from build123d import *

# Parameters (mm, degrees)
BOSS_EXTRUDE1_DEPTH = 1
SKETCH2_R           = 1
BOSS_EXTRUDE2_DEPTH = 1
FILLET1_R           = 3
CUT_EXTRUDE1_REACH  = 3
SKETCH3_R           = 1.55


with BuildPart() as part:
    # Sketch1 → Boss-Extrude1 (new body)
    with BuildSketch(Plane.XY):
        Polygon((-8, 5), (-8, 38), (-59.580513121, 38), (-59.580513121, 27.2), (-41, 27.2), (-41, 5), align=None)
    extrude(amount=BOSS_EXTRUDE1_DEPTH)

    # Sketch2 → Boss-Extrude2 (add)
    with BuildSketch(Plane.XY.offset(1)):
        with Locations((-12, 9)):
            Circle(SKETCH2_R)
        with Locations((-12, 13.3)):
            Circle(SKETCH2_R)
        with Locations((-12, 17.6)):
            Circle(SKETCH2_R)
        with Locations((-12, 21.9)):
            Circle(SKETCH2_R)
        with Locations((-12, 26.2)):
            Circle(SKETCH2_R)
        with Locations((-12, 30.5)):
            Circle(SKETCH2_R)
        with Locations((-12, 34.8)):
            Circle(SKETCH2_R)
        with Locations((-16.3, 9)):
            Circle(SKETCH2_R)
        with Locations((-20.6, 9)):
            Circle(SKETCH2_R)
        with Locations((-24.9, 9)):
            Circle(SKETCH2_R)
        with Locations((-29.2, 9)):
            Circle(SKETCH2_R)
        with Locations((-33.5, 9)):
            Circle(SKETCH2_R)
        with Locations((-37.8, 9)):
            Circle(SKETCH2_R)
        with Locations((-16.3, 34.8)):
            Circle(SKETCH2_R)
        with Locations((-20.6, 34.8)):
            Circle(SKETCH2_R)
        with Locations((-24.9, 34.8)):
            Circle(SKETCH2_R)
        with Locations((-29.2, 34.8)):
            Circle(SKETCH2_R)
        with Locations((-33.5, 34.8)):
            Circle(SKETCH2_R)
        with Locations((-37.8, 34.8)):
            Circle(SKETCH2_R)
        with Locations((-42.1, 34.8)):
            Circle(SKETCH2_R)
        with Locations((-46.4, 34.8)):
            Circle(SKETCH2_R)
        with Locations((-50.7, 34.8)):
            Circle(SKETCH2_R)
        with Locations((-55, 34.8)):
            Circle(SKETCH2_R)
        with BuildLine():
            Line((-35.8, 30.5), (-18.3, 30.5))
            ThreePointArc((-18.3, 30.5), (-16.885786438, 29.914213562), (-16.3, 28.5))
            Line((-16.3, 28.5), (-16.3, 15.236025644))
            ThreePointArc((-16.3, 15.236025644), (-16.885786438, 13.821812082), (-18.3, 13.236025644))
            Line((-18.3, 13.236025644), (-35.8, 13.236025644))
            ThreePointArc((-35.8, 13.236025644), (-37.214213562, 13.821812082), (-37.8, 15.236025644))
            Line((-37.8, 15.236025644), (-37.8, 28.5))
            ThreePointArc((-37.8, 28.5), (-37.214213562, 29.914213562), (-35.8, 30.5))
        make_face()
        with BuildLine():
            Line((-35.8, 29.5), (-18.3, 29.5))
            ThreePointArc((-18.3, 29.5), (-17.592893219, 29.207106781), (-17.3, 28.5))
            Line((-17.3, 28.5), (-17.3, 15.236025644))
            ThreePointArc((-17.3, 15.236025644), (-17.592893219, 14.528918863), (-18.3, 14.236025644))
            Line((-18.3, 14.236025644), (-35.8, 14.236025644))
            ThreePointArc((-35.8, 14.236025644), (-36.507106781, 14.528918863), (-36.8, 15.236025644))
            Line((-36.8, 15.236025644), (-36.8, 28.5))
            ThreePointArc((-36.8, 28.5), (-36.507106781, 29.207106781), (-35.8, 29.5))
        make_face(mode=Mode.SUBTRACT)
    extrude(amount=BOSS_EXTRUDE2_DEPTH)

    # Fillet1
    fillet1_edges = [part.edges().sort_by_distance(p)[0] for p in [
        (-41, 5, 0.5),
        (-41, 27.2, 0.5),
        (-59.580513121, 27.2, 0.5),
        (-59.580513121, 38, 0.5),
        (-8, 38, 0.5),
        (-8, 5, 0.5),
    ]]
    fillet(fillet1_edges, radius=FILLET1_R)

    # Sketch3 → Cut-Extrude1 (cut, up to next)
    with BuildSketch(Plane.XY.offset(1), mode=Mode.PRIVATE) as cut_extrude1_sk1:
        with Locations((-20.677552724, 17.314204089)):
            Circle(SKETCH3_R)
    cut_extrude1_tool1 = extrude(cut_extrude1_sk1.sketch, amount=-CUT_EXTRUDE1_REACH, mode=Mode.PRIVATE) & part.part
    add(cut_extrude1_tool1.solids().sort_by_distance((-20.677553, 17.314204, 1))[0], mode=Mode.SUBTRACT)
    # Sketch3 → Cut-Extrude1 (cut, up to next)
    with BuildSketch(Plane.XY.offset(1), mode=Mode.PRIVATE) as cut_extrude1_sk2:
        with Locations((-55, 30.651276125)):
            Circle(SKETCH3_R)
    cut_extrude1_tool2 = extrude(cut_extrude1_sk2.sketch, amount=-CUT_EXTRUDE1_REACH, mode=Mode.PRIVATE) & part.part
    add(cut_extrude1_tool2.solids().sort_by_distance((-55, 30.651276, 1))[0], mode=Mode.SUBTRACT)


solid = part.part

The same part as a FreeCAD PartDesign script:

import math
import FreeCAD as App
import Part
import Sketcher
from FreeCAD import Vector
Q = App.Units.Quantity


def edges_at(feature, points):
    """Names of the edges that pass closest to the given points."""
    edges = feature.Shape.Edges
    near = lambda p: min(range(len(edges)), key=lambda i: edges[i].distToShape(Part.Vertex(*p))[0])
    return sorted({f"Edge{near(p) + 1}" for p in points})

doc = App.newDocument("Part")
body = doc.addObject("PartDesign::Body", "Body")

# Sketch on XY plane
sketch1 = body.newObject("Sketcher::SketchObject", "Sketch")
sketch1.AttachmentSupport = (doc.getObject("XY_Plane"), [""])
sketch1.MapMode = "FlatFace"
sketch1.addGeometry([
    Part.LineSegment(Vector(-8, 5, 0), Vector(-8, 38, 0)),  # 0
    Part.LineSegment(Vector(-8, 38, 0), Vector(-60, 38, 0)),  # 1
    Part.LineSegment(Vector(-60, 38, 0), Vector(-60, 27, 0)),  # 2
    Part.LineSegment(Vector(-60, 27, 0), Vector(-41, 27, 0)),  # 3
    Part.LineSegment(Vector(-41, 27, 0), Vector(-41, 5, 0)),  # 4
    Part.LineSegment(Vector(-41, 5, 0), Vector(-8, 5, 0)),  # 5
], False)
sketch1.addConstraint([
    Sketcher.Constraint("Coincident", 0, 2, 1, 1),
    Sketcher.Constraint("Coincident", 1, 2, 2, 1),
    Sketcher.Constraint("Coincident", 2, 2, 3, 1),
    Sketcher.Constraint("Coincident", 3, 2, 4, 1),
    Sketcher.Constraint("Coincident", 4, 2, 5, 1),
    Sketcher.Constraint("Coincident", 5, 2, 0, 1),
    Sketcher.Constraint("Vertical", 0),
    Sketcher.Constraint("Horizontal", 1),
    Sketcher.Constraint("Vertical", 2),
    Sketcher.Constraint("Horizontal", 3),
    Sketcher.Constraint("Vertical", 4),
    Sketcher.Constraint("Horizontal", 5),
    Sketcher.Constraint("Equal", 5, 0),
    Sketcher.Constraint("DistanceX", 5, 1, 5, 2, Q("33 mm")),
    Sketcher.Constraint("DistanceY", 2, 2, 2, 1, Q("10.8 mm")),
    Sketcher.Constraint("DistanceX", 0, 2, -1, 1, Q("8 mm")),
    Sketcher.Constraint("DistanceY", -1, 1, 0, 2, Q("38 mm")),
    Sketcher.Constraint("DistanceX", 1, 2, 1, 1, Q("51.580513 mm")),
])
pad1 = body.newObject("PartDesign::Pad", "Pad")
pad1.Profile = sketch1
pad1.Length = 1

# Sketch on XY plane
sketch2 = body.newObject("Sketcher::SketchObject", "Sketch001")
sketch2.AttachmentSupport = (doc.getObject("XY_Plane"), [""])
sketch2.MapMode = "FlatFace"
sketch2.AttachmentOffset = App.Placement(Vector(0, 0, 1), App.Rotation())
sketch2.addGeometry([
    Part.Circle(Vector(-12, 9, 0), Vector(0, 0, 1), 1),  # 0
    Part.Circle(Vector(-12, 13.3, 0), Vector(0, 0, 1), 1),  # 1
    Part.Circle(Vector(-12, 17.6, 0), Vector(0, 0, 1), 1),  # 2
    Part.Circle(Vector(-12, 21.9, 0), Vector(0, 0, 1), 1),  # 3
    Part.Circle(Vector(-12, 26.2, 0), Vector(0, 0, 1), 1),  # 4
    Part.Circle(Vector(-12, 30.5, 0), Vector(0, 0, 1), 1),  # 5
    Part.Circle(Vector(-12, 34.8, 0), Vector(0, 0, 1), 1),  # 6
    Part.Circle(Vector(-16.3, 9, 0), Vector(0, 0, 1), 1),  # 7
    Part.Circle(Vector(-20.6, 9, 0), Vector(0, 0, 1), 1),  # 8
    Part.Circle(Vector(-24.9, 9, 0), Vector(0, 0, 1), 1),  # 9
    Part.Circle(Vector(-29.2, 9, 0), Vector(0, 0, 1), 1),  # 10
    Part.Circle(Vector(-33.5, 9, 0), Vector(0, 0, 1), 1),  # 11
    Part.Circle(Vector(-37.8, 9, 0), Vector(0, 0, 1), 1),  # 12
    Part.Circle(Vector(-16.3, 34.8, 0), Vector(0, 0, 1), 1),  # 13
    Part.Circle(Vector(-20.6, 34.8, 0), Vector(0, 0, 1), 1),  # 14
    Part.Circle(Vector(-24.9, 34.8, 0), Vector(0, 0, 1), 1),  # 15
    Part.Circle(Vector(-29.2, 34.8, 0), Vector(0, 0, 1), 1),  # 16
    Part.Circle(Vector(-33.5, 34.8, 0), Vector(0, 0, 1), 1),  # 17
    Part.Circle(Vector(-37.8, 34.8, 0), Vector(0, 0, 1), 1),  # 18
    Part.Circle(Vector(-42.1, 34.8, 0), Vector(0, 0, 1), 1),  # 19
    Part.Circle(Vector(-46.4, 34.8, 0), Vector(0, 0, 1), 1),  # 20
    Part.Circle(Vector(-50.7, 34.8, 0), Vector(0, 0, 1), 1),  # 21
    Part.Circle(Vector(-55, 34.8, 0), Vector(0, 0, 1), 1),  # 22
    Part.LineSegment(Vector(-18.3, 30.5, 0), Vector(-35.8, 30.5, 0)),  # 23
    Part.ArcOfCircle(Part.Circle(Vector(-35.8, 28.5, 0), Vector(0, 0, 1), 2), math.radians(90), math.radians(180)),  # 24
    Part.LineSegment(Vector(-37.8, 28.5, 0), Vector(-37.8, 15.2, 0)),  # 25
    Part.ArcOfCircle(Part.Circle(Vector(-35.8, 15.2, 0), Vector(0, 0, 1), 2), math.radians(-180), math.radians(-90)),  # 26
    Part.LineSegment(Vector(-35.8, 13.2, 0), Vector(-18.3, 13.2, 0)),  # 27
    Part.ArcOfCircle(Part.Circle(Vector(-18.3, 15.2, 0), Vector(0, 0, 1), 2), math.radians(-90), math.radians(0)),  # 28
    Part.LineSegment(Vector(-16.3, 15.2, 0), Vector(-16.3, 28.5, 0)),  # 29
    Part.ArcOfCircle(Part.Circle(Vector(-18.3, 28.5, 0), Vector(0, 0, 1), 2), math.radians(0), math.radians(90)),  # 30
    Part.LineSegment(Vector(-35.8, 29.5, 0), Vector(-18.3, 29.5, 0)),  # 31
    Part.ArcOfCircle(Part.Circle(Vector(-18.3, 28.5, 0), Vector(0, 0, 1), 1), math.radians(0), math.radians(90)),  # 32
    Part.LineSegment(Vector(-17.3, 28.5, 0), Vector(-17.3, 15.2, 0)),  # 33
    Part.ArcOfCircle(Part.Circle(Vector(-18.3, 15.2, 0), Vector(0, 0, 1), 1), math.radians(-90), math.radians(0)),  # 34
    Part.LineSegment(Vector(-18.3, 14.2, 0), Vector(-35.8, 14.2, 0)),  # 35
    Part.ArcOfCircle(Part.Circle(Vector(-35.8, 15.2, 0), Vector(0, 0, 1), 1), math.radians(-180), math.radians(-90)),  # 36
    Part.LineSegment(Vector(-36.8, 15.2, 0), Vector(-36.8, 28.5, 0)),  # 37
    Part.ArcOfCircle(Part.Circle(Vector(-35.8, 28.5, 0), Vector(0, 0, 1), 1), math.radians(90), math.radians(180)),  # 38
], False)
sketch2.addConstraint([
    Sketcher.Constraint("Tangent", 23, 2, 24, 1),
    Sketcher.Constraint("Tangent", 24, 2, 25, 1),
    Sketcher.Constraint("Tangent", 25, 2, 26, 1),
    Sketcher.Constraint("Tangent", 26, 2, 27, 1),
    Sketcher.Constraint("Tangent", 27, 2, 28, 1),
    Sketcher.Constraint("Tangent", 28, 2, 29, 1),
    Sketcher.Constraint("Tangent", 29, 2, 30, 1),
    Sketcher.Constraint("Tangent", 30, 2, 23, 1),
    Sketcher.Constraint("Tangent", 31, 2, 32, 2),
    Sketcher.Constraint("Tangent", 32, 1, 33, 1),
    Sketcher.Constraint("Tangent", 33, 2, 34, 2),
    Sketcher.Constraint("Tangent", 34, 1, 35, 1),
    Sketcher.Constraint("Tangent", 35, 2, 36, 2),
    Sketcher.Constraint("Tangent", 36, 1, 37, 1),
    Sketcher.Constraint("Tangent", 37, 2, 38, 2),
    Sketcher.Constraint("Tangent", 38, 1, 31, 1),
    Sketcher.Constraint("Horizontal", 23),
    Sketcher.Constraint("Vertical", 25),
    Sketcher.Constraint("Horizontal", 27),
    Sketcher.Constraint("Vertical", 29),
    Sketcher.Constraint("Horizontal", 31),
    Sketcher.Constraint("Vertical", 33),
    Sketcher.Constraint("Horizontal", 35),
    Sketcher.Constraint("Vertical", 37),
    Sketcher.Constraint("Coincident", 32, 3, 30, 3),
    Sketcher.Constraint("Coincident", 34, 3, 28, 3),
    Sketcher.Constraint("Coincident", 36, 3, 26, 3),
    Sketcher.Constraint("Equal", 0, 1),
    Sketcher.Constraint("Equal", 1, 2),
    Sketcher.Constraint("Equal", 2, 3),
    Sketcher.Constraint("Equal", 3, 4),
    Sketcher.Constraint("Equal", 4, 5),
    Sketcher.Constraint("Equal", 5, 6),
    Sketcher.Constraint("Equal", 6, 7),
    Sketcher.Constraint("Equal", 7, 8),
    Sketcher.Constraint("Equal", 8, 9),
    Sketcher.Constraint("Equal", 9, 10),
    Sketcher.Constraint("Equal", 10, 11),
    Sketcher.Constraint("Equal", 11, 12),
    Sketcher.Constraint("Equal", 12, 13),
    Sketcher.Constraint("Equal", 13, 14),
    Sketcher.Constraint("Equal", 14, 15),
    Sketcher.Constraint("Equal", 15, 16),
    Sketcher.Constraint("Equal", 16, 17),
    Sketcher.Constraint("Equal", 17, 18),
    Sketcher.Constraint("Equal", 18, 19),
    Sketcher.Constraint("Equal", 19, 20),
    Sketcher.Constraint("Equal", 20, 21),
    Sketcher.Constraint("Equal", 21, 22),
    Sketcher.Constraint("Equal", 24, 26),
    Sketcher.Constraint("Equal", 26, 28),
    Sketcher.Constraint("Equal", 28, 30),
    Sketcher.Constraint("Equal", 22, 32),
    Sketcher.Constraint("Equal", 36, 38),
    Sketcher.Constraint("Horizontal", 0, 3, 7, 3),
    Sketcher.Constraint("Horizontal", 7, 3, 8, 3),
    Sketcher.Constraint("Horizontal", 8, 3, 9, 3),
    Sketcher.Constraint("Horizontal", 9, 3, 10, 3),
    Sketcher.Constraint("Horizontal", 10, 3, 11, 3),
    Sketcher.Constraint("Horizontal", 11, 3, 12, 3),
    Sketcher.Constraint("Horizontal", 6, 3, 13, 3),
    Sketcher.Constraint("Horizontal", 13, 3, 14, 3),
    Sketcher.Constraint("Horizontal", 14, 3, 15, 3),
    Sketcher.Constraint("Horizontal", 15, 3, 16, 3),
    Sketcher.Constraint("Horizontal", 16, 3, 17, 3),
    Sketcher.Constraint("Horizontal", 17, 3, 18, 3),
    Sketcher.Constraint("Horizontal", 18, 3, 19, 3),
    Sketcher.Constraint("Horizontal", 19, 3, 20, 3),
    Sketcher.Constraint("Horizontal", 20, 3, 21, 3),
    Sketcher.Constraint("Horizontal", 21, 3, 22, 3),
    Sketcher.Constraint("Horizontal", 5, 3, 23, 2),
    Sketcher.Constraint("Vertical", 0, 3, 1, 3),
    Sketcher.Constraint("Vertical", 1, 3, 2, 3),
    Sketcher.Constraint("Vertical", 2, 3, 3, 3),
    Sketcher.Constraint("Vertical", 3, 3, 4, 3),
    Sketcher.Constraint("Vertical", 4, 3, 5, 3),
    Sketcher.Constraint("Vertical", 5, 3, 6, 3),
    Sketcher.Constraint("Vertical", 7, 3, 13, 3),
    Sketcher.Constraint("Vertical", 8, 3, 14, 3),
    Sketcher.Constraint("Vertical", 9, 3, 15, 3),
    Sketcher.Constraint("Vertical", 10, 3, 16, 3),
    Sketcher.Constraint("Vertical", 11, 3, 17, 3),
    Sketcher.Constraint("Vertical", 12, 3, 18, 3),
    Sketcher.Constraint("Vertical", 18, 3, 24, 2),
    Sketcher.Constraint("Vertical", 13, 3, 28, 2),
    Sketcher.Constraint("Diameter", 0, Q("2 mm")),
    Sketcher.Constraint("Radius", 24, Q("2 mm")),
    Sketcher.Constraint("DistanceX", 23, 2, 23, 1, Q("17.5 mm")),
    Sketcher.Constraint("DistanceX", 0, 3, -1, 1, Q("12 mm")),
    Sketcher.Constraint("DistanceY", -1, 1, 0, 3, Q("9 mm")),
    Sketcher.Constraint("DistanceX", 22, 3, -1, 1, Q("55 mm")),
    Sketcher.Constraint("DistanceY", -1, 1, 1, 3, Q("13.3 mm")),
    Sketcher.Constraint("DistanceY", -1, 1, 2, 3, Q("17.6 mm")),
    Sketcher.Constraint("DistanceY", -1, 1, 3, 3, Q("21.9 mm")),
    Sketcher.Constraint("DistanceY", -1, 1, 4, 3, Q("26.2 mm")),
    Sketcher.Constraint("DistanceY", -1, 1, 5, 3, Q("30.5 mm")),
    Sketcher.Constraint("DistanceY", -1, 1, 6, 3, Q("34.8 mm")),
    Sketcher.Constraint("DistanceX", 7, 3, -1, 1, Q("16.3 mm")),
    Sketcher.Constraint("DistanceX", 8, 3, -1, 1, Q("20.6 mm")),
    Sketcher.Constraint("DistanceX", 9, 3, -1, 1, Q("24.9 mm")),
    Sketcher.Constraint("DistanceX", 10, 3, -1, 1, Q("29.2 mm")),
    Sketcher.Constraint("DistanceX", 11, 3, -1, 1, Q("33.5 mm")),
    Sketcher.Constraint("DistanceX", 19, 3, -1, 1, Q("42.1 mm")),
    Sketcher.Constraint("DistanceX", 20, 3, -1, 1, Q("46.4 mm")),
    Sketcher.Constraint("DistanceX", 21, 3, -1, 1, Q("50.7 mm")),
    Sketcher.Constraint("DistanceY", 25, 2, 25, 1, Q("13.263974 mm")),
])
pad2 = body.newObject("PartDesign::Pad", "Pad001")
pad2.Profile = sketch2
pad2.Length = 1
doc.recompute()

fillet = body.newObject("PartDesign::Fillet", "Fillet")
fillet.Base = (pad2, edges_at(pad2, [
    (-41, 5, 0.5),
    (-41, 27.2, 0.5),
    (-59.581, 27.2, 0.5),
    (-59.581, 38, 0.5),
    (-8, 38, 0.5),
    (-8, 5, 0.5),
]))
fillet.Radius = 3

# Sketch on XY plane
sketch3 = body.newObject("Sketcher::SketchObject", "Sketch002")
sketch3.AttachmentSupport = (doc.getObject("XY_Plane"), [""])
sketch3.MapMode = "FlatFace"
sketch3.AttachmentOffset = App.Placement(Vector(0, 0, 1), App.Rotation())
sketch3.addGeometry(Part.Circle(Vector(-20.7, 17.3, 0), Vector(0, 0, 1), 1.6), False)
sketch3.addConstraint([
    Sketcher.Constraint("Diameter", 0, Q("3.1 mm")),
    Sketcher.Constraint("DistanceX", 0, 3, -1, 1, Q("20.677553 mm")),
    Sketcher.Constraint("DistanceY", -1, 1, 0, 3, Q("17.314204 mm")),
])
pocket1 = body.newObject("PartDesign::Pocket", "Pocket")
pocket1.Profile = sketch3
pocket1.Type = "UpToFirst"

# Sketch on XY plane
sketch4 = body.newObject("Sketcher::SketchObject", "Sketch003")
sketch4.AttachmentSupport = (doc.getObject("XY_Plane"), [""])
sketch4.MapMode = "FlatFace"
sketch4.AttachmentOffset = App.Placement(Vector(0, 0, 1), App.Rotation())
sketch4.addGeometry(Part.Circle(Vector(-55, 30.7, 0), Vector(0, 0, 1), 1.6), False)
sketch4.addConstraint([
    Sketcher.Constraint("Diameter", 0, Q("3.1 mm")),
    Sketcher.Constraint("DistanceX", 0, 3, -1, 1, Q("55 mm")),
    Sketcher.Constraint("DistanceY", -1, 1, 0, 3, Q("30.651276 mm")),
])
pocket2 = body.newObject("PartDesign::Pocket", "Pocket001")
pocket2.Profile = sketch4
pocket2.Type = "UpToFirst"

doc.recompute()
